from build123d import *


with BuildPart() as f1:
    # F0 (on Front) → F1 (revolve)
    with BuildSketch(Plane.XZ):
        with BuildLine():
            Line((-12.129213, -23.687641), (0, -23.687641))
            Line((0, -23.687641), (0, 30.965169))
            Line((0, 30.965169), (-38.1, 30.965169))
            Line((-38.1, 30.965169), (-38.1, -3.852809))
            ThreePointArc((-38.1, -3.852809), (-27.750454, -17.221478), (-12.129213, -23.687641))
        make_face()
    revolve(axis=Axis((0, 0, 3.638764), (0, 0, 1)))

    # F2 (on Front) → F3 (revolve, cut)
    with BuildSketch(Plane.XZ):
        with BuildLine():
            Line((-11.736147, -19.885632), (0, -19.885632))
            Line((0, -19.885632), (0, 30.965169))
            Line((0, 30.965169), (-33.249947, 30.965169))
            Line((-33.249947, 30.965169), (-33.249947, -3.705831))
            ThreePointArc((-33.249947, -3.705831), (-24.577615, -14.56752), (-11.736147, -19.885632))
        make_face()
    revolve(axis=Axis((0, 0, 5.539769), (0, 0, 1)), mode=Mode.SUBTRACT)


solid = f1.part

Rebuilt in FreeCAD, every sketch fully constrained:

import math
import FreeCAD as App
import Part
import Sketcher
Q = App.Units.Quantity

doc = App.newDocument("Part")
body = doc.addObject("PartDesign::Body", "Body")

# Sketch on XZ plane
sketch1 = body.newObject("Sketcher::SketchObject", "Sketch")
sketch1.AttachmentSupport = (doc.getObject("XZ_Plane"), [""])
sketch1.MapMode = "FlatFace"
sketch1.addGeometry([
    Part.LineSegment(App.Vector(-12.129213, -23.687641, 0), App.Vector(0, -23.687641, 0)),  # 0
    Part.LineSegment(App.Vector(0, -23.687641, 0), App.Vector(0, 30.965169, 0)),  # 1
    Part.LineSegment(App.Vector(0, 30.965169, 0), App.Vector(-38.1, 30.965169, 0)),  # 2
    Part.LineSegment(App.Vector(-38.1, 30.965169, 0), App.Vector(-38.1, -3.852809, 0)),  # 3
    Part.ArcOfCircle(Part.Circle(App.Vector(-7.775315, 8.93302, 0), App.Vector(0, 0, 1), 32.909937), math.radians(-157.138201), math.radians(-97.602369)),  # 4
], False)
sketch1.addConstraint([
    Sketcher.Constraint("Coincident", 0, 2, 1, 1),
    Sketcher.Constraint("Coincident", 1, 2, 2, 1),
    Sketcher.Constraint("Coincident", 2, 2, 3, 1),
    Sketcher.Constraint("Coincident", 3, 2, 4, 1),
    Sketcher.Constraint("Coincident", 4, 2, 0, 1),
    Sketcher.Constraint("Horizontal", 0),
    Sketcher.Constraint("Vertical", 1),
    Sketcher.Constraint("Horizontal", 2),
    Sketcher.Constraint("Vertical", 3),
    Sketcher.Constraint("PointOnObject", 0, 2, -2),
    Sketcher.Constraint("DistanceX", 2, 2, 2, 1, Q("1.5 in")),
    Sketcher.Constraint("Radius", 4, 32.909937),
    Sketcher.Constraint("DistanceY", 1, 1, 1, 2, 54.65281),
    Sketcher.Constraint("DistanceX", 4, 2, 4, 3, 4.353898),
    Sketcher.Constraint("DistanceX", 0, 1, 0, 2, 12.129213),
    Sketcher.Constraint("DistanceY", -1, 1, 4, 3, 8.93302),
])
revolution = body.newObject("PartDesign::Revolution", "Revolution")
revolution.Profile = sketch1
revolution.ReferenceAxis = (sketch1, ["V_Axis"])
revolution.Angle = 360

# Sketch on XZ plane
sketch2 = body.newObject("Sketcher::SketchObject", "Sketch001")
sketch2.AttachmentSupport = (doc.getObject("XZ_Plane"), [""])
sketch2.MapMode = "FlatFace"
sketch2.addGeometry([
    Part.LineSegment(App.Vector(-11.736147, -19.885632, 0), App.Vector(0, -19.885632, 0)),  # 0
    Part.LineSegment(App.Vector(0, -19.885632, 0), App.Vector(0, 30.965169, 0)),  # 1
    Part.LineSegment(App.Vector(0, 30.965169, 0), App.Vector(-33.249947, 30.965169, 0)),  # 2
    Part.LineSegment(App.Vector(-33.249947, 30.965169, 0), App.Vector(-33.249947, -3.705831, 0)),  # 3
    Part.ArcOfCircle(Part.Circle(App.Vector(-7.837478, 7.691342, 0), App.Vector(0, 0, 1), 27.851196), math.radians(-155.844364), math.radians(-98.04681)),  # 4
], False)
sketch2.addConstraint([
    Sketcher.Constraint("Coincident", 0, 2, 1, 1),
    Sketcher.Constraint("Coincident", 1, 2, 2, 1),
    Sketcher.Constraint("Coincident", 2, 2, 3, 1),
    Sketcher.Constraint("Coincident", 3, 2, 4, 1),
    Sketcher.Constraint("Coincident", 4, 2, 0, 1),
    Sketcher.Constraint("Horizontal", 0),
    Sketcher.Constraint("Vertical", 1),
    Sketcher.Constraint("Horizontal", 2),
    Sketcher.Constraint("Vertical", 3),
    Sketcher.Constraint("PointOnObject", 0, 2, -2),
    Sketcher.Constraint("DistanceY", 1, 1, 1, 2, Q("2.002 in")),
    Sketcher.Constraint("DistanceY", 3, 2, 3, 1, Q("1.365 in")),
    Sketcher.Constraint("DistanceX", 3, 2, 4, 2, Q("0.847 in")),
    Sketcher.Constraint("Radius", 4, 27.851196),
    Sketcher.Constraint("DistanceX", 0, 1, 0, 2, 11.736147),
    Sketcher.Constraint("DistanceY", -1, 1, 1, 2, 30.965169),
])
groove = body.newObject("PartDesign::Groove", "Groove")
groove.Profile = sketch2
groove.ReferenceAxis = (sketch2, ["V_Axis"])
groove.Angle = 360

doc.recompute()
